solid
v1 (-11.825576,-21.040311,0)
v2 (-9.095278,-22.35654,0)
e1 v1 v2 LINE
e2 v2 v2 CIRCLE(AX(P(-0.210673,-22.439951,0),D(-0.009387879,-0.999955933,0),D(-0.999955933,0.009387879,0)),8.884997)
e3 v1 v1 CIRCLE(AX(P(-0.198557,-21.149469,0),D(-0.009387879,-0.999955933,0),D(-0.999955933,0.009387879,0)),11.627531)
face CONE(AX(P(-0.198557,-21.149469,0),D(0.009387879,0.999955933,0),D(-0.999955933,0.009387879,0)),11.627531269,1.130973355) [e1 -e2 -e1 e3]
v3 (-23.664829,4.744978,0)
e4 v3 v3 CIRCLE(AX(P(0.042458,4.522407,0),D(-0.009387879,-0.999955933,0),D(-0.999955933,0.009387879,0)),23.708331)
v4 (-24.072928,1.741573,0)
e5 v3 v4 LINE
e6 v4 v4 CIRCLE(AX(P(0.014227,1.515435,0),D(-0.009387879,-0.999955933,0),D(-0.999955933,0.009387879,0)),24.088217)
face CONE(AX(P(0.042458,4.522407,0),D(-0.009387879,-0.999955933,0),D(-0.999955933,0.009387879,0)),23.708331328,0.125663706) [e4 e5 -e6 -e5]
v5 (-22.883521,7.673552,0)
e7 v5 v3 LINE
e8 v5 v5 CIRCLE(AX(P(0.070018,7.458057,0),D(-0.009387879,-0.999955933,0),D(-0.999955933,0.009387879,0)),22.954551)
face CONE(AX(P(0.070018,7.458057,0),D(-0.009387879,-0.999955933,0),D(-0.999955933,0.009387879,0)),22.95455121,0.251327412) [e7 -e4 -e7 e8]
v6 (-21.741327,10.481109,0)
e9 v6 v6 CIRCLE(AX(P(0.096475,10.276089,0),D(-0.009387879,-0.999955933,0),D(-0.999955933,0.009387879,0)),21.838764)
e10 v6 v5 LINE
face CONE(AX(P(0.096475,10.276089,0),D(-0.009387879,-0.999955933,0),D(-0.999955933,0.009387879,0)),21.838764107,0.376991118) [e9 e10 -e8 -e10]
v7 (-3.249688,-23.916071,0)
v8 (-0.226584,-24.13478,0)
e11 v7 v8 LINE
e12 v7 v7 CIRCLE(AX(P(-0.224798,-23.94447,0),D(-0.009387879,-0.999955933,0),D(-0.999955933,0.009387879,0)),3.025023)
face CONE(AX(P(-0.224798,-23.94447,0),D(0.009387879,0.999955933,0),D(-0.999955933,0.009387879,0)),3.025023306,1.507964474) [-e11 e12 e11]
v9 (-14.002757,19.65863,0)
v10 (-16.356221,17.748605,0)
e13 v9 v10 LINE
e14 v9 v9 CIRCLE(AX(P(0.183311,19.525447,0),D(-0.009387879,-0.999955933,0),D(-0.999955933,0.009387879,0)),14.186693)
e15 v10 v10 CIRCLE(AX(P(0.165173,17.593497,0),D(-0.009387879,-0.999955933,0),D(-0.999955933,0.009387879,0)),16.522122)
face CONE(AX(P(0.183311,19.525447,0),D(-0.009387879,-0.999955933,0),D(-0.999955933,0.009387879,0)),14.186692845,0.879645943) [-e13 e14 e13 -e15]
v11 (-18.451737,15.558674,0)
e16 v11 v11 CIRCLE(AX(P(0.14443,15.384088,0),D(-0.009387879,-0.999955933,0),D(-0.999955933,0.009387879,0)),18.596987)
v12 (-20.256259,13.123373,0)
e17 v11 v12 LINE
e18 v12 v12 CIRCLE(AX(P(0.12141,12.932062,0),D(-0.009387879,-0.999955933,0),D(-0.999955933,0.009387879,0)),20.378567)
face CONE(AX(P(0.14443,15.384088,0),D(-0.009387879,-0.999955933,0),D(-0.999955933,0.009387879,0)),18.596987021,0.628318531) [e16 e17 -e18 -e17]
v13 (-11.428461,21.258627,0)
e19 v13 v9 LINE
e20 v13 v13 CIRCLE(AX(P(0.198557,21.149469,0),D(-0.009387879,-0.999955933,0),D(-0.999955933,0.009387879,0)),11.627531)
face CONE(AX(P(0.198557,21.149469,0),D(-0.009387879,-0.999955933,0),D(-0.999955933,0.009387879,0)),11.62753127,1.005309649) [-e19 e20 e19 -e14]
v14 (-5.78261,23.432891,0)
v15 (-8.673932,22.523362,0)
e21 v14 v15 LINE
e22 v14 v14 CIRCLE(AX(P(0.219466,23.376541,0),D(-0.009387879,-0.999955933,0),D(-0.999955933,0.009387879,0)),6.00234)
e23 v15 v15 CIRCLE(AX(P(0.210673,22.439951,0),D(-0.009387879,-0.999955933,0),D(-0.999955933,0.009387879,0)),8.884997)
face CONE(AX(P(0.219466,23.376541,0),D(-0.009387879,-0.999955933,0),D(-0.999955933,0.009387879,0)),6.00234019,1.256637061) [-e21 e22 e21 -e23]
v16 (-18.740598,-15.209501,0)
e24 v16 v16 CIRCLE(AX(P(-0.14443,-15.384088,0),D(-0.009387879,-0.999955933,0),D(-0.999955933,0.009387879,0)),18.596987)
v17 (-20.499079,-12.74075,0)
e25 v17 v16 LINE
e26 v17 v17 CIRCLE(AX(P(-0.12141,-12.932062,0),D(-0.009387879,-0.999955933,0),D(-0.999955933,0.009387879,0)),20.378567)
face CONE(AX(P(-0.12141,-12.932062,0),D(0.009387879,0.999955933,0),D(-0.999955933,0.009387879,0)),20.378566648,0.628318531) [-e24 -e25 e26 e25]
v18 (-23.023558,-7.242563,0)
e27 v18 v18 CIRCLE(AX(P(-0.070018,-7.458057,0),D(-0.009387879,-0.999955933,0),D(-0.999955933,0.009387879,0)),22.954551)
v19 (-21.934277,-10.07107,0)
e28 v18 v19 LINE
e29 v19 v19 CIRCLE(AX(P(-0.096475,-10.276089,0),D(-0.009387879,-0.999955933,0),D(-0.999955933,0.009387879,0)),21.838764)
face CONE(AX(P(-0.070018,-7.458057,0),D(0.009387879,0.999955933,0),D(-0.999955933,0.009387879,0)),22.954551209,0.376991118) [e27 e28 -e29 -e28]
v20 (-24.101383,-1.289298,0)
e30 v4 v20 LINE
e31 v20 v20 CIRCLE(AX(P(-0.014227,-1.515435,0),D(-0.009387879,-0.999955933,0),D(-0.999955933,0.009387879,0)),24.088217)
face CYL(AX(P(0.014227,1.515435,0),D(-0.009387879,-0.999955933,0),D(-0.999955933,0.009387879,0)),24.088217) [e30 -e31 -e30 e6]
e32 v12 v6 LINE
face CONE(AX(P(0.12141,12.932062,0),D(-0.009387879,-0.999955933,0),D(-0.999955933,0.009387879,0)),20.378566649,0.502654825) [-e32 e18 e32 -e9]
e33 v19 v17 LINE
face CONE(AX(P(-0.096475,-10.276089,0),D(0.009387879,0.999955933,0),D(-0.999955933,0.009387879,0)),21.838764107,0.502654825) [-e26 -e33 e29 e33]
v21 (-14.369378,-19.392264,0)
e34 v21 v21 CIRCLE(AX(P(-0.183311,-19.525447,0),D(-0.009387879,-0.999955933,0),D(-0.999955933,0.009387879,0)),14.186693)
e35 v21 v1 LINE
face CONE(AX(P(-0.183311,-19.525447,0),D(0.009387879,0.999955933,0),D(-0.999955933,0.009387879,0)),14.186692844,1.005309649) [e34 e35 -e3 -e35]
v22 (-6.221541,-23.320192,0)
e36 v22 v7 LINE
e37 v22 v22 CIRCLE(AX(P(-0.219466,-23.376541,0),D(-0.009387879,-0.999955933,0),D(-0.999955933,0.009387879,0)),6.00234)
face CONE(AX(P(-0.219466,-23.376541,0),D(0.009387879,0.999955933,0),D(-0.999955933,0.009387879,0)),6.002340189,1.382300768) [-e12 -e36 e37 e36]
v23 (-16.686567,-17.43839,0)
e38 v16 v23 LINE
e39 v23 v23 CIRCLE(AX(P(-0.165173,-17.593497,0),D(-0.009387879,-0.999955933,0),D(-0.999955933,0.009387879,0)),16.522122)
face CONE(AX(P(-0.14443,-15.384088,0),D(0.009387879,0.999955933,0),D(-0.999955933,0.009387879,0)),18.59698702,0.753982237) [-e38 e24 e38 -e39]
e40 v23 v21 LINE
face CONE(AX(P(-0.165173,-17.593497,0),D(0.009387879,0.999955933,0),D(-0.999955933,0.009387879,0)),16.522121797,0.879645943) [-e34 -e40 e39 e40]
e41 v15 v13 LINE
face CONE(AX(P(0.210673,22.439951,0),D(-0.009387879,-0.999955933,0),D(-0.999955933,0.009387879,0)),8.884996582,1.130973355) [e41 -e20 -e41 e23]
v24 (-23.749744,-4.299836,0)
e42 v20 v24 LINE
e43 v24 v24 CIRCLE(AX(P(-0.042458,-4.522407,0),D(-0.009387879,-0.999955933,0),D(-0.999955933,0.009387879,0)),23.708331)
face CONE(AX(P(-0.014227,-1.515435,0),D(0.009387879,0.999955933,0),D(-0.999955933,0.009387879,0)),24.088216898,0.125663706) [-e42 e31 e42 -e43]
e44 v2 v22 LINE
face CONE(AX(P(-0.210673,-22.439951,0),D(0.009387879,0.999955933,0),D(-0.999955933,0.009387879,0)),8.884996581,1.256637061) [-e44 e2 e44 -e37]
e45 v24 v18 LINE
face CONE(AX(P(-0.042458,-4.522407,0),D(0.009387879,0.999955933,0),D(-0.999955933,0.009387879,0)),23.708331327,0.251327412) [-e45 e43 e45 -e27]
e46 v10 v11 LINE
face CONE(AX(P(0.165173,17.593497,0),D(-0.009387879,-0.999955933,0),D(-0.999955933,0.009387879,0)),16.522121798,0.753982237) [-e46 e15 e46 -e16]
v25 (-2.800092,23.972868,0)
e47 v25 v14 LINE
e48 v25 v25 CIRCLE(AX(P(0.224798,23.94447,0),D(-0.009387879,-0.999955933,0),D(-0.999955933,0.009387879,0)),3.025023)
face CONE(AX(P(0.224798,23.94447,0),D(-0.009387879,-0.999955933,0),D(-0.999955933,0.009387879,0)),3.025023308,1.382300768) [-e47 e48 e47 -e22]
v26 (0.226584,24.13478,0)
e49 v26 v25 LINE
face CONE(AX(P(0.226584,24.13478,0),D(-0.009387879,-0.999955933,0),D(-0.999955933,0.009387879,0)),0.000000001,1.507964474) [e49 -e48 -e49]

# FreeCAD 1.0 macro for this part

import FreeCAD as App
import Part
import Sketcher
from FreeCAD import Vector
Q = App.Units.Quantity

doc = App.newDocument("Part")
body = doc.addObject("PartDesign::Body", "Body")

# Sketch on XY plane
sketch1 = body.newObject("Sketcher::SketchObject", "Sketch")
sketch1.AttachmentSupport = (doc.getObject("XY_Plane"), [""])
sketch1.MapMode = "FlatFace"
sketch1.addGeometry(Part.LineSegment(Vector(-20.3, 13.1, 0), Vector(-21.7, 10.5, 0)), False)
sketch1.addGeometry(Part.LineSegment(Vector(-21.7, 10.5, 0), Vector(-22.9, 7.7, 0)), False)
sketch1.addGeometry(Part.LineSegment(Vector(-22.9, 7.7, 0), Vector(-23.7, 4.7, 0)), False)
sketch1.addGeometry(Part.LineSegment(Vector(-23.7, 4.7, 0), Vector(-24.1, 1.7, 0)), False)
sketch1.addGeometry(Part.LineSegment(Vector(-24.1, 1.7, 0), Vector(-24.1, -1.3, 0)), False)
sketch1.addGeometry(Part.LineSegment(Vector(-24.1, -1.3, 0), Vector(-23.7, -4.3, 0)), False)
sketch1.addGeometry(Part.LineSegment(Vector(-23.7, -4.3, 0), Vector(-23, -7.2, 0)), False)
sketch1.addGeometry(Part.LineSegment(Vector(-23, -7.2, 0), Vector(-21.9, -10.1, 0)), False)
sketch1.addGeometry(Part.LineSegment(Vector(-21.9, -10.1, 0), Vector(-20.5, -12.7, 0)), False)
sketch1.addGeometry(Part.LineSegment(Vector(-20.5, -12.7, 0), Vector(-18.7, -15.2, 0)), False)
sketch1.addGeometry(Part.LineSegment(Vector(-18.7, -15.2, 0), Vector(-16.7, -17.4, 0)), False)
sketch1.addGeometry(Part.LineSegment(Vector(-16.7, -17.4, 0), Vector(-14.4, -19.4, 0)), False)
sketch1.addGeometry(Part.LineSegment(Vector(-14.4, -19.4, 0), Vector(-11.8, -21, 0)), False)
sketch1.addGeometry(Part.LineSegment(Vector(-11.8, -21, 0), Vector(-9.1, -22.4, 0)), False)
sketch1.addGeometry(Part.LineSegment(Vector(-9.1, -22.4, 0), Vector(-6.2, -23.3, 0)), False)
sketch1.addGeometry(Part.LineSegment(Vector(-6.2, -23.3, 0), Vector(-3.2, -23.9, 0)), False)
sketch1.addGeometry(Part.LineSegment(Vector(-3.2, -23.9, 0), Vector(-0.2, -24.1, 0)), False)
sketch1.addGeometry(Part.LineSegment(Vector(-0.2, -24.1, 0), Vector(0.2, 24.1, 0)), False)
sketch1.addGeometry(Part.LineSegment(Vector(0.2, 24.1, 0), Vector(-2.8, 24, 0)), False)
sketch1.addGeometry(Part.LineSegment(Vector(-2.8, 24, 0), Vector(-5.8, 23.4, 0)), False)
sketch1.addGeometry(Part.LineSegment(Vector(-5.8, 23.4, 0), Vector(-8.7, 22.5, 0)), False)
sketch1.addGeometry(Part.LineSegment(Vector(-8.7, 22.5, 0), Vector(-11.4, 21.3, 0)), False)
sketch1.addGeometry(Part.LineSegment(Vector(-11.4, 21.3, 0), Vector(-14, 19.7, 0)), False)
sketch1.addGeometry(Part.LineSegment(Vector(-14, 19.7, 0), Vector(-16.4, 17.7, 0)), False)
sketch1.addGeometry(Part.LineSegment(Vector(-16.4, 17.7, 0), Vector(-18.5, 15.6, 0)), False)
sketch1.addGeometry(Part.LineSegment(Vector(-18.5, 15.6, 0), Vector(-20.3, 13.1, 0)), False)
sketch1.addGeometry(Part.LineSegment(Vector(0.2, 24.1, 0), Vector(-0.2, -24.1, 0)), True)  # axis
sketch1.addConstraint(Sketcher.Constraint("Coincident", 0, 2, 1, 1))
sketch1.addConstraint(Sketcher.Constraint("Coincident", 1, 2, 2, 1))
sketch1.addConstraint(Sketcher.Constraint("Coincident", 2, 2, 3, 1))
sketch1.addConstraint(Sketcher.Constraint("Coincident", 3, 2, 4, 1))
sketch1.addConstraint(Sketcher.Constraint("Coincident", 4, 2, 5, 1))
sketch1.addConstraint(Sketcher.Constraint("Coincident", 5, 2, 6, 1))
sketch1.addConstraint(Sketcher.Constraint("Coincident", 6, 2, 7, 1))
sketch1.addConstraint(Sketcher.Constraint("Coincident", 7, 2, 8, 1))
sketch1.addConstraint(Sketcher.Constraint("Coincident", 8, 2, 9, 1))
sketch1.addConstraint(Sketcher.Constraint("Coincident", 9, 2, 10, 1))
sketch1.addConstraint(Sketcher.Constraint("Coincident", 10, 2, 11, 1))
sketch1.addConstraint(Sketcher.Constraint("Coincident", 11, 2, 12, 1))
sketch1.addConstraint(Sketcher.Constraint("Coincident", 12, 2, 13, 1))
sketch1.addConstraint(Sketcher.Constraint("Coincident", 13, 2, 14, 1))
sketch1.addConstraint(Sketcher.Constraint("Coincident", 14, 2, 15, 1))
sketch1.addConstraint(Sketcher.Constraint("Coincident", 15, 2, 16, 1))
sketch1.addConstraint(Sketcher.Constraint("Coincident", 16, 2, 17, 1))
sketch1.addConstraint(Sketcher.Constraint("Coincident", 17, 2, 18, 1))
sketch1.addConstraint(Sketcher.Constraint("Coincident", 18, 2, 19, 1))
sketch1.addConstraint(Sketcher.Constraint("Coincident", 19, 2, 20, 1))
sketch1.addConstraint(Sketcher.Constraint("Coincident", 20, 2, 21, 1))
sketch1.addConstraint(Sketcher.Constraint("Coincident", 21, 2, 22, 1))
sketch1.addConstraint(Sketcher.Constraint("Coincident", 22, 2, 23, 1))
sketch1.addConstraint(Sketcher.Constraint("Coincident", 23, 2, 24, 1))
sketch1.addConstraint(Sketcher.Constraint("Coincident", 24, 2, 25, 1))
sketch1.addConstraint(Sketcher.Constraint("Coincident", 25, 2, 0, 1))
sketch1.addConstraint(Sketcher.Constraint("Coincident", 26, 1, 17, 2))
sketch1.addConstraint(Sketcher.Constraint("Coincident", 26, 2, 16, 2))
sketch1.addConstraint(Sketcher.Constraint("Symmetric", 16, 2, 17, 2, -1, 1))
sketch1.addConstraint(Sketcher.Constraint("Parallel", 4, 17))
sketch1.addConstraint(Sketcher.Constraint("Equal", 0, 1))
sketch1.addConstraint(Sketcher.Constraint("Equal", 1, 2))
sketch1.addConstraint(Sketcher.Constraint("Equal", 2, 3))
sketch1.addConstraint(Sketcher.Constraint("Equal", 3, 4))
sketch1.addConstraint(Sketcher.Constraint("Equal", 4, 5))
sketch1.addConstraint(Sketcher.Constraint("Equal", 5, 6))
sketch1.addConstraint(Sketcher.Constraint("Equal", 6, 7))
sketch1.addConstraint(Sketcher.Constraint("Equal", 7, 8))
sketch1.addConstraint(Sketcher.Constraint("Equal", 8, 9))
sketch1.addConstraint(Sketcher.Constraint("Equal", 9, 10))
sketch1.addConstraint(Sketcher.Constraint("Equal", 10, 11))
sketch1.addConstraint(Sketcher.Constraint("Equal", 11, 12))
sketch1.addConstraint(Sketcher.Constraint("Equal", 12, 13))
sketch1.addConstraint(Sketcher.Constraint("Equal", 13, 14))
sketch1.addConstraint(Sketcher.Constraint("Equal", 14, 15))
sketch1.addConstraint(Sketcher.Constraint("Equal", 15, 16))
sketch1.addConstraint(Sketcher.Constraint("Equal", 16, 18))
sketch1.addConstraint(Sketcher.Constraint("Equal", 18, 19))
sketch1.addConstraint(Sketcher.Constraint("Equal", 19, 20))
sketch1.addConstraint(Sketcher.Constraint("Equal", 20, 21))
sketch1.addConstraint(Sketcher.Constraint("Equal", 21, 22))
sketch1.addConstraint(Sketcher.Constraint("Equal", 22, 23))
sketch1.addConstraint(Sketcher.Constraint("Equal", 23, 24))
sketch1.addConstraint(Sketcher.Constraint("Equal", 24, 25))
sketch1.addConstraint(Sketcher.Constraint("DistanceY", 4, 2, -1, 1, Q("1.289298 mm")))
sketch1.addConstraint(Sketcher.Constraint("DistanceY", 9, 2, -1, 1, Q("15.209501 mm")))
sketch1.addConstraint(Sketcher.Constraint("DistanceX", 3, 2, 2, 2, Q("0.408099 mm")))
sketch1.addConstraint(Sketcher.Constraint("DistanceX", 3, 2, 0, 2, Q("2.331601 mm")))
sketch1.addConstraint(Sketcher.Constraint("DistanceX", 7, 2, 8, 2, Q("1.435198 mm")))
sketch1.addConstraint(Sketcher.Constraint("DistanceX", 8, 2, 11, 2, Q("6.1297 mm")))
sketch1.addConstraint(Sketcher.Constraint("DistanceY", 11, 2, 6, 2, Q("12.149702 mm")))
sketch1.addConstraint(Sketcher.Constraint("DistanceX", 7, 2, 12, 2, Q("10.1087 mm")))
sketch1.addConstraint(Sketcher.Constraint("DistanceX", 12, 2, 13, 2, Q("2.730298 mm")))
sketch1.addConstraint(Sketcher.Constraint("DistanceY", 25, 2, 24, 2, Q("2.435301 mm")))
sketch1.addConstraint(Sketcher.Constraint("DistanceY", -1, 1, 0, 2, Q("10.481109 mm")))
sketch1.addConstraint(Sketcher.Constraint("DistanceX", 1, 2, -1, 1, Q("22.883521 mm")))
sketch1.addConstraint(Sketcher.Constraint("DistanceY", -1, 1, 1, 2, Q("7.673552 mm")))
sketch1.addConstraint(Sketcher.Constraint("DistanceX", 6, 2, -1, 1, Q("23.023558 mm")))
sketch1.addConstraint(Sketcher.Constraint("DistanceY", 7, 2, -1, 1, Q("10.07107 mm")))
sketch1.addConstraint(Sketcher.Constraint("DistanceX", 8, 2, -1, 1, Q("20.499079 mm")))
sketch1.addConstraint(Sketcher.Constraint("DistanceX", 14, 2, -1, 1, Q("6.221541 mm")))
sketch1.addConstraint(Sketcher.Constraint("DistanceY", 15, 2, -1, 1, Q("23.916071 mm")))
sketch1.addConstraint(Sketcher.Constraint("DistanceY", 16, 2, -1, 1, Q("24.13478 mm")))
sketch1.addConstraint(Sketcher.Constraint("DistanceY", -1, 1, 18, 2, Q("23.972868 mm")))
sketch1.addConstraint(Sketcher.Constraint("DistanceX", 19, 2, -1, 1, Q("5.78261 mm")))
sketch1.addConstraint(Sketcher.Constraint("DistanceX", 21, 2, -1, 1, Q("11.428461 mm")))
sketch1.addConstraint(Sketcher.Constraint("DistanceY", -1, 1, 22, 2, Q("19.65863 mm")))
sketch1.addConstraint(Sketcher.Constraint("DistanceX", 23, 2, -1, 1, Q("16.356221 mm")))
sketch1.addConstraint(Sketcher.Constraint("DistanceX", 25, 2, -1, 1, Q("20.256259 mm")))
revolution = body.newObject("PartDesign::Revolution", "Revolution")
revolution.Profile = sketch1
revolution.ReferenceAxis = (sketch1, ["Axis0"])
revolution.Angle = 360

doc.recompute()
